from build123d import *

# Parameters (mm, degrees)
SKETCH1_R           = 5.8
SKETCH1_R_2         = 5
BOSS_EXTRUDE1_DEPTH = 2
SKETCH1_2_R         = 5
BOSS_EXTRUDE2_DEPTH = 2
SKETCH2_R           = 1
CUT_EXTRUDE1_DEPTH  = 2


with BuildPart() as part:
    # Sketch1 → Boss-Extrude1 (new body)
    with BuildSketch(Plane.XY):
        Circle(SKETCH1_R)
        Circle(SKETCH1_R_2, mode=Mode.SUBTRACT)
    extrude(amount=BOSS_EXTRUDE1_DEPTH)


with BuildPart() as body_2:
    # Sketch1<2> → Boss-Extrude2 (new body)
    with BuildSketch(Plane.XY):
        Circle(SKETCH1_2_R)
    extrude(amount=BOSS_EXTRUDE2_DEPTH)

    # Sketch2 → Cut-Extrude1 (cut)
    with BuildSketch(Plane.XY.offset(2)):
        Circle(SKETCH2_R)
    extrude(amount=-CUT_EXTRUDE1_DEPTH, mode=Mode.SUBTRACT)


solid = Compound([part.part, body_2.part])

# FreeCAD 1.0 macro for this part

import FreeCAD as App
import Part
import Sketcher

V = App.Vector

doc = App.newDocument("Part")
params = doc.addObject("Spreadsheet::Sheet", "Params")
for row, (alias, value) in enumerate([
    ("sketch1_diameter", "10 mm"),
    ("sketch1_diameter2", "11.6 mm"),
    ("pad1_length", "2 mm"),
    ("sketch2_diameter", "10 mm"),
    ("pad2_length", "2 mm"),
    ("sketch3_diameter", "2 mm"),
    ("pocket1_length", "2 mm"),
], start=1):
    params.set(f"A{row}", alias)
    params.set(f"B{row}", "=" + value)
    params.setAlias(f"B{row}", alias)

body = doc.addObject("PartDesign::Body", "Body")

# Sketch on XY plane
sketch1 = body.newObject("Sketcher::SketchObject", "Sketch")
sketch1.AttachmentSupport = (doc.getObject("XY_Plane"), [""])
sketch1.MapMode = "FlatFace"
sketch1.addGeometry(Part.Circle(V(0, 0, 0), V(0, 0, 1), 6), False)
sketch1.addGeometry(Part.Circle(V(0, 0, 0), V(0, 0, 1), 5), False)
sketch1.addConstraint(Sketcher.Constraint("Coincident", 0, 3, -1, 1))
sketch1.addConstraint(Sketcher.Constraint("Coincident", 1, 3, -1, 1))
sketch1.addConstraint(Sketcher.Constraint("Diameter", 1, 10.0))
sketch1.addConstraint(Sketcher.Constraint("Diameter", 0, 11.6))
sketch1.setExpression("Constraints[2]", "Params.sketch1_diameter")
sketch1.setExpression("Constraints[3]", "Params.sketch1_diameter2")
pad1 = body.newObject("PartDesign::Pad", "Pad")
pad1.Profile = sketch1
pad1.setExpression("Length", "Params.pad1_length")
body2 = doc.addObject("PartDesign::Body", "Body001")

# Sketch on XY plane
sketch2 = body2.newObject("Sketcher::SketchObject", "Sketch001")
sketch2.AttachmentSupport = (doc.getObject("XY_Plane001"), [""])
sketch2.MapMode = "FlatFace"
sketch2.addGeometry(Part.Circle(V(0, 0, 0), V(0, 0, 1), 5), False)
sketch2.addConstraint(Sketcher.Constraint("Coincident", 0, 3, -1, 1))
sketch2.addConstraint(Sketcher.Constraint("Diameter", 0, 10.0))
sketch2.setExpression("Constraints[1]", "Params.sketch2_diameter")
pad2 = body2.newObject("PartDesign::Pad", "Pad001")
pad2.Profile = sketch2
pad2.setExpression("Length", "Params.pad2_length")

# Sketch on XY plane
sketch3 = body2.newObject("Sketcher::SketchObject", "Sketch002")
sketch3.AttachmentSupport = (doc.getObject("XY_Plane001"), [""])
sketch3.MapMode = "FlatFace"
sketch3.AttachmentOffset = App.Placement(V(0, 0, 2), App.Rotation())
sketch3.addGeometry(Part.Circle(V(0, 0, 0), V(0, 0, 1), 1), False)
sketch3.addConstraint(Sketcher.Constraint("Coincident", 0, 3, -1, 1))
sketch3.addConstraint(Sketcher.Constraint("Diameter", 0, 2.0))
sketch3.setExpression("Constraints[1]", "Params.sketch3_diameter")
pocket1 = body2.newObject("PartDesign::Pocket", "Pocket")
pocket1.Profile = sketch3
pocket1.setExpression("Length", "Params.pocket1_length")

doc.recompute()
